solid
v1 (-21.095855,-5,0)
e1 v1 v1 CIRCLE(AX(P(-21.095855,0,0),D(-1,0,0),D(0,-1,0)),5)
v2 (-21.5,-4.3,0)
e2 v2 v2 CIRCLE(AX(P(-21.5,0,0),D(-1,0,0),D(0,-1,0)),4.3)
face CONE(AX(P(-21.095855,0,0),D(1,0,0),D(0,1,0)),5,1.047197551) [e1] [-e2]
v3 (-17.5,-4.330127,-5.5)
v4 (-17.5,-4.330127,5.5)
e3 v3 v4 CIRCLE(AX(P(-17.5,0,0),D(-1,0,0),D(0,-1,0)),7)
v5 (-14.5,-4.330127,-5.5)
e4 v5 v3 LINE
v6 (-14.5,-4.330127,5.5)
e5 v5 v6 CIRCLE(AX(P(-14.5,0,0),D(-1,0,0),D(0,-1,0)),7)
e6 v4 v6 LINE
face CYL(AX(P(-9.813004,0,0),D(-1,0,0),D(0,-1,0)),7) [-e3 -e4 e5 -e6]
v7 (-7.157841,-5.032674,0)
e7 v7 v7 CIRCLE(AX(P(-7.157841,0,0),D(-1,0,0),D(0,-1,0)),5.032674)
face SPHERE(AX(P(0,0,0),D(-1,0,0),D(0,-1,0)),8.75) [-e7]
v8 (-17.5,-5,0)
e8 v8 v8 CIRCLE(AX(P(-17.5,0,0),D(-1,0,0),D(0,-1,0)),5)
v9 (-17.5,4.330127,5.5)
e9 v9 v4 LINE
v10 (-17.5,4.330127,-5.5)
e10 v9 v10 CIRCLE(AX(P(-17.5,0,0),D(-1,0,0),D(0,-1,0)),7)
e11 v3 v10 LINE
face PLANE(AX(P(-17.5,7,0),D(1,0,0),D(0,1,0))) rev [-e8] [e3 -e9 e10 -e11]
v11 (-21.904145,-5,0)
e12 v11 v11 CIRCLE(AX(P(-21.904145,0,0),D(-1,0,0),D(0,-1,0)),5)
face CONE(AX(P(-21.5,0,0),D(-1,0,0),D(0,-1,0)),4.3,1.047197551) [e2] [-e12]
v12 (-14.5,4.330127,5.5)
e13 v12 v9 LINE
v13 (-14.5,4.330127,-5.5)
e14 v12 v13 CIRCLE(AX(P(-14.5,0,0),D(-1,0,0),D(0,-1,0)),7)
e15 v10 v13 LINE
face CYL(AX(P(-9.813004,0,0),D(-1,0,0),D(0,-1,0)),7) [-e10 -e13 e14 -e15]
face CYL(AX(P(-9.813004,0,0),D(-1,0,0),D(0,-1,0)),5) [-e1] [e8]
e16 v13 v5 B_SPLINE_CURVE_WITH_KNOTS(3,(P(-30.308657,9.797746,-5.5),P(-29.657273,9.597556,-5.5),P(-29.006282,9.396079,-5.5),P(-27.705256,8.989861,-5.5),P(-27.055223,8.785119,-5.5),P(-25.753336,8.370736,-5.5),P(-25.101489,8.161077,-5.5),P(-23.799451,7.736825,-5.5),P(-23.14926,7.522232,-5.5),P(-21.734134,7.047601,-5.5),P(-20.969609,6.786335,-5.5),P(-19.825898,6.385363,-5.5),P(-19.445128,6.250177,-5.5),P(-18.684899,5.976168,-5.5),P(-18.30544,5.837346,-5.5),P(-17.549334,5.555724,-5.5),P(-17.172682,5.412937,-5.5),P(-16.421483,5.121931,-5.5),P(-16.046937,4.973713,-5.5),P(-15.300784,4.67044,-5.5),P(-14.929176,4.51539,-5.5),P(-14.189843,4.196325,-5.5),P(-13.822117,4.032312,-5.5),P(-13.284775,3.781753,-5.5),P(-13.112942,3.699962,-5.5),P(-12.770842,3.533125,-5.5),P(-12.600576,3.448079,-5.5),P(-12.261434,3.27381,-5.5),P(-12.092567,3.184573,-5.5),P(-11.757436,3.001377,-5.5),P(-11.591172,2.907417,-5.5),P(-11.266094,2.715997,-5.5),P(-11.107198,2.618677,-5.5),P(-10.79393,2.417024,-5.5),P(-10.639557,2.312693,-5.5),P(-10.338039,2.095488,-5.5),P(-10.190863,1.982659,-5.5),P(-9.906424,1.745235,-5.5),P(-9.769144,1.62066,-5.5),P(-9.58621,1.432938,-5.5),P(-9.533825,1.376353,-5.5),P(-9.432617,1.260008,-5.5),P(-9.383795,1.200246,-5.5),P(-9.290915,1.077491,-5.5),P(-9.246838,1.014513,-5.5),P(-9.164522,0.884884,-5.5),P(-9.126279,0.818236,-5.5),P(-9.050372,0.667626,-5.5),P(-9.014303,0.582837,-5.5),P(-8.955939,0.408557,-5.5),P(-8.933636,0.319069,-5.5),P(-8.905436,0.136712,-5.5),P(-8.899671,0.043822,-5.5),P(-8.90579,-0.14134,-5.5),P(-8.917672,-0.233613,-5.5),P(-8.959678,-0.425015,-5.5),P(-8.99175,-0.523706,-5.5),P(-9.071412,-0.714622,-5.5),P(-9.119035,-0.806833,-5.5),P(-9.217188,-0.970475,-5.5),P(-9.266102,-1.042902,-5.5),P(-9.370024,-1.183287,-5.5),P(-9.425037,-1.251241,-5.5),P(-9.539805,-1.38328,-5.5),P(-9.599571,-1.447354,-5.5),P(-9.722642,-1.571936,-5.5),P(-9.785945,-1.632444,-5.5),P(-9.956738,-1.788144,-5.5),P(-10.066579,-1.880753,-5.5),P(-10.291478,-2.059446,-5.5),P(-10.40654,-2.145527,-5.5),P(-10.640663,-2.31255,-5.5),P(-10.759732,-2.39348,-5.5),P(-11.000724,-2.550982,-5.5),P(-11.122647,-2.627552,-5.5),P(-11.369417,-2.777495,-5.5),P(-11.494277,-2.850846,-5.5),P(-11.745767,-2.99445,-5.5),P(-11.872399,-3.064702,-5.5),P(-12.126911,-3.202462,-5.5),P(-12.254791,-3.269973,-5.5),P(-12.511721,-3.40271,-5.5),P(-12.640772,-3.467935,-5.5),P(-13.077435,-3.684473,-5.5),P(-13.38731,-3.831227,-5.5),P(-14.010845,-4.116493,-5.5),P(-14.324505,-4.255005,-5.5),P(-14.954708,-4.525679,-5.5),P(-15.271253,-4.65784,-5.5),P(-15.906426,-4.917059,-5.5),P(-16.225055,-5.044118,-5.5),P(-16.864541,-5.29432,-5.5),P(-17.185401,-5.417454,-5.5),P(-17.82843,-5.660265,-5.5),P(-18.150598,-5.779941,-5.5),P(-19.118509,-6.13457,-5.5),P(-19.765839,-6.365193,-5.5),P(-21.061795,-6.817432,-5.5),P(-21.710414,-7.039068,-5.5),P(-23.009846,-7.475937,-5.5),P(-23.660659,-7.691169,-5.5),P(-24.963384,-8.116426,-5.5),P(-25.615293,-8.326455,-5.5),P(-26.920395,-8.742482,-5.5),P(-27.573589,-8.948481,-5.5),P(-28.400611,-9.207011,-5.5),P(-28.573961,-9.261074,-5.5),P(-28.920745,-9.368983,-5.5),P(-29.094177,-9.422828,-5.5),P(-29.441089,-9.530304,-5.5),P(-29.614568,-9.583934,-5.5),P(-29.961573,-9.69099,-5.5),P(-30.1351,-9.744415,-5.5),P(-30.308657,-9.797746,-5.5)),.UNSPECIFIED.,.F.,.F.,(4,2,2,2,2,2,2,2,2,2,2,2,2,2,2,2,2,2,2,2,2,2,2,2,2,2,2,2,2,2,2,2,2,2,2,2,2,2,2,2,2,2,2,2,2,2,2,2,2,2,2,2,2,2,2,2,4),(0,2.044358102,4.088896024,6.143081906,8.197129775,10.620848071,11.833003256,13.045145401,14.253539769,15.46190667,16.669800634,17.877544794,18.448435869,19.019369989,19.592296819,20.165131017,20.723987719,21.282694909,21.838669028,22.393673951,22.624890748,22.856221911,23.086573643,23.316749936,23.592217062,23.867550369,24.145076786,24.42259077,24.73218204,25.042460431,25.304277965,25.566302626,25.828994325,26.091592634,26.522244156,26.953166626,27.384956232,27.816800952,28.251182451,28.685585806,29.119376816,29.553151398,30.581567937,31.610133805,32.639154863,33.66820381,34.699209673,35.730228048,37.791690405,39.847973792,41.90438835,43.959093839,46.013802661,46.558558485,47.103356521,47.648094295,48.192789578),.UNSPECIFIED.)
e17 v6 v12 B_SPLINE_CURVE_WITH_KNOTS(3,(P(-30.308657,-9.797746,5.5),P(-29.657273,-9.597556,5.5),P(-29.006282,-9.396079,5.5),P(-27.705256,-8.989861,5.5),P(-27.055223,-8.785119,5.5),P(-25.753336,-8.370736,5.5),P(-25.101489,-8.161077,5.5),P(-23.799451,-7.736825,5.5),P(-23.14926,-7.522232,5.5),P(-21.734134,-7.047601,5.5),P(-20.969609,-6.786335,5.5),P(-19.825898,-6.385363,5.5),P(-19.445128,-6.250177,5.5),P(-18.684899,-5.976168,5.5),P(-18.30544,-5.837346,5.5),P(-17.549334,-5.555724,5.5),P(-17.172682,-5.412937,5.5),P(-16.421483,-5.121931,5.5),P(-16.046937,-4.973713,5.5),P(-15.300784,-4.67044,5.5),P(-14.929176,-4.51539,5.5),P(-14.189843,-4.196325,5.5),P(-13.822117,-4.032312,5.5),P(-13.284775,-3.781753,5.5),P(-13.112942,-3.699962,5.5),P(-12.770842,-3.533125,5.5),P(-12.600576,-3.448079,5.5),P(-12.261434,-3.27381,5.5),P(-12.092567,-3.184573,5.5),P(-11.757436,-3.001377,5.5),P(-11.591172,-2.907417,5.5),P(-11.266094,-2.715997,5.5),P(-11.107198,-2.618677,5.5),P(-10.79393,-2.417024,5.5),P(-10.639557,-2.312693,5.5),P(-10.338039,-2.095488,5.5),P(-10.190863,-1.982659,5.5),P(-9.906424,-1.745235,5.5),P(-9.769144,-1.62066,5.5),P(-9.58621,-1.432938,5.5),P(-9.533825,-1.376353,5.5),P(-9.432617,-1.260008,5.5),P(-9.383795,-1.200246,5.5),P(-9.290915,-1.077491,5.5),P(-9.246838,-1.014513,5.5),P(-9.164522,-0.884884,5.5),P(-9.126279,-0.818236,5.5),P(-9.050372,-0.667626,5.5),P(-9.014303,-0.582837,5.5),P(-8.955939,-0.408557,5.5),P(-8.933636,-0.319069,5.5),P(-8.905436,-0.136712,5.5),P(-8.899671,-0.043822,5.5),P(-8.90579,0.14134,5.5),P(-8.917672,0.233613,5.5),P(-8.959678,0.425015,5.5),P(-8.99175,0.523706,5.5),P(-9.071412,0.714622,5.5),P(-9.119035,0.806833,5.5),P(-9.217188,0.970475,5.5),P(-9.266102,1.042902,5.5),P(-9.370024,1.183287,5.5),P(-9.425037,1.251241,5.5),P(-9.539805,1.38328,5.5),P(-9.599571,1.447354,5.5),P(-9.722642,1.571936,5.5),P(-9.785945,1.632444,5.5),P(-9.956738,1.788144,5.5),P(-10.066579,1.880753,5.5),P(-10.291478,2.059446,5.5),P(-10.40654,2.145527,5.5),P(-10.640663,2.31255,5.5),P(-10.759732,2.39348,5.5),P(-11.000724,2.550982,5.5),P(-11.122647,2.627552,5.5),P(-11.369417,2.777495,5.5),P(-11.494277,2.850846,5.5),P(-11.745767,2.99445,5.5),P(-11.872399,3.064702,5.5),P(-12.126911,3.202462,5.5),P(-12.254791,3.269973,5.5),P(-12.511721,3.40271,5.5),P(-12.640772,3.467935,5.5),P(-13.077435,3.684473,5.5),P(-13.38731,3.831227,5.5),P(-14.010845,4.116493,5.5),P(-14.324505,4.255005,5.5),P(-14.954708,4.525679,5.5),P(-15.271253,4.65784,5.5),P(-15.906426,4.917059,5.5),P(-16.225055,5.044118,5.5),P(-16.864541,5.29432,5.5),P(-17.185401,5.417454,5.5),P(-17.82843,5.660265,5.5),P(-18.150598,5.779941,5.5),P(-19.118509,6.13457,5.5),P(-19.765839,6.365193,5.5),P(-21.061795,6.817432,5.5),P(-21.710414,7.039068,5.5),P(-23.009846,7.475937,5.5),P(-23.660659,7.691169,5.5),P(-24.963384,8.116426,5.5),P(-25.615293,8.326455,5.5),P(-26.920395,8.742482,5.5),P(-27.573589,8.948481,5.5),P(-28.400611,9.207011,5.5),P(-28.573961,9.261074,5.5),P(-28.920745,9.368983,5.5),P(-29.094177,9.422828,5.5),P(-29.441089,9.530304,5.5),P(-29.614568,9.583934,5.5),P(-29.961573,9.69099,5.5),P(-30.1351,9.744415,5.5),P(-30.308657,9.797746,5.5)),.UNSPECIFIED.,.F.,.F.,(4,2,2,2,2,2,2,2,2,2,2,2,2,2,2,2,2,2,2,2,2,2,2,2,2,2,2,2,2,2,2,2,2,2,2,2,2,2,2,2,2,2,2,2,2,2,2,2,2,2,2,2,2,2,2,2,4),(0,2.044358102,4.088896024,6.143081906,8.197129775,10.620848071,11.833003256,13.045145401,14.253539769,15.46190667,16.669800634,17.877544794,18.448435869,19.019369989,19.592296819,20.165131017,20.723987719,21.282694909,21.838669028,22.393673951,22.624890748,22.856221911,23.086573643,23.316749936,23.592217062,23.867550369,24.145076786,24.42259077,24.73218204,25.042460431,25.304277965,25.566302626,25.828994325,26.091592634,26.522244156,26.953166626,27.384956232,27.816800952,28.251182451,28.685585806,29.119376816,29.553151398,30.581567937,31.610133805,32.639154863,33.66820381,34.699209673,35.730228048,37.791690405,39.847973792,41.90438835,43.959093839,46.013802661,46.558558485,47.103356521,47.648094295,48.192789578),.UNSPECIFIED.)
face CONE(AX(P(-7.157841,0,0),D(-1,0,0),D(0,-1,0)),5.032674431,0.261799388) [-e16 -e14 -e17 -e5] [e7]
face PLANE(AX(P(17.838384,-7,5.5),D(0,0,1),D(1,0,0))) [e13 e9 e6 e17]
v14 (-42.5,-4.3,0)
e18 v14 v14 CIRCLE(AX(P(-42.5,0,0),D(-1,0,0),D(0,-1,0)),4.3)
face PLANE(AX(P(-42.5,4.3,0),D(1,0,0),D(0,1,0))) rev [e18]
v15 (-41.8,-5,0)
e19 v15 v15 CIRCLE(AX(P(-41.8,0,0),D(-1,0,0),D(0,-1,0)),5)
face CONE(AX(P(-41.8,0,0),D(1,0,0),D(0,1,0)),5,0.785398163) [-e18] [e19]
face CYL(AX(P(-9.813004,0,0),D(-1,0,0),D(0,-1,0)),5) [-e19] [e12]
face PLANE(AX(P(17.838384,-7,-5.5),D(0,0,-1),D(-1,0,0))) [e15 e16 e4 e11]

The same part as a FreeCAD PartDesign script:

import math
import FreeCAD as App
import Part
import Sketcher
from FreeCAD import Vector
Q = App.Units.Quantity


def add_polygon(sketch, points):
    """Adds a closed chain of lines whose ends are joined by coincident constraints."""
    first, n = sketch.GeometryCount, len(points)
    for a, b in zip(points, points[1:] + points[:1]):
        sketch.addGeometry(Part.LineSegment(App.Vector(*a, 0), App.Vector(*b, 0)), False)
    for i in range(n):
        sketch.addConstraint(Sketcher.Constraint("Coincident", first + i, 2, first + (i + 1) % n, 1))

doc = App.newDocument("Part")
body = doc.addObject("PartDesign::Body", "Body")

# Sketch on XY plane
sketch1 = body.newObject("Sketcher::SketchObject", "Sketch")
sketch1.AttachmentSupport = (doc.getObject("XY_Plane"), [""])
sketch1.MapMode = "FlatFace"
sketch1.addGeometry([
    Part.LineSegment(Vector(-14.5, 7, 0), Vector(-17.5, 7, 0)),  # 0
    Part.LineSegment(Vector(-17.5, 7, 0), Vector(-17.5, 5, 0)),  # 1
    Part.LineSegment(Vector(-17.5, 5, 0), Vector(-21.1, 5, 0)),  # 2
    Part.LineSegment(Vector(-21.1, 5, 0), Vector(-21.5, 4.3, 0)),  # 3
    Part.LineSegment(Vector(-21.5, 4.3, 0), Vector(-21.9, 5, 0)),  # 4
    Part.LineSegment(Vector(-21.9, 5, 0), Vector(-41.8, 5, 0)),  # 5
    Part.LineSegment(Vector(-41.8, 5, 0), Vector(-42.5, 4.3, 0)),  # 6
    Part.LineSegment(Vector(-42.5, 4.3, 0), Vector(-42.5, 0, 0)),  # 7
    Part.LineSegment(Vector(-42.5, 0, 0), Vector(8.8, 0, 0)),  # 8
    Part.ArcOfCircle(Part.Circle(Vector(0, 0, 0), Vector(0, 0, 1), 8.8), math.radians(0), math.radians(145)),  # 9
    Part.LineSegment(Vector(-7.2, 5, 0), Vector(-14.5, 7, 0)),  # 10
], False)
sketch1.addConstraint([
    Sketcher.Constraint("Coincident", 0, 2, 1, 1),
    Sketcher.Constraint("Coincident", 1, 2, 2, 1),
    Sketcher.Constraint("Coincident", 2, 2, 3, 1),
    Sketcher.Constraint("Coincident", 3, 2, 4, 1),
    Sketcher.Constraint("Coincident", 4, 2, 5, 1),
    Sketcher.Constraint("Coincident", 5, 2, 6, 1),
    Sketcher.Constraint("Coincident", 6, 2, 7, 1),
    Sketcher.Constraint("Coincident", 7, 2, 8, 1),
    Sketcher.Constraint("Coincident", 8, 2, 9, 1),
    Sketcher.Constraint("Coincident", 9, 2, 10, 1),
    Sketcher.Constraint("Coincident", 10, 2, 0, 1),
    Sketcher.Constraint("Horizontal", 0),
    Sketcher.Constraint("Vertical", 1),
    Sketcher.Constraint("Horizontal", 2),
    Sketcher.Constraint("Horizontal", 5),
    Sketcher.Constraint("Vertical", 7),
    Sketcher.Constraint("Horizontal", 8),
    Sketcher.Constraint("Coincident", 9, 3, -1, 1),
    Sketcher.Constraint("PointOnObject", 7, 2, -1),
    Sketcher.Constraint("Horizontal", 2, 2, 4, 2),
    Sketcher.Constraint("Horizontal", 3, 2, 6, 2),
    Sketcher.Constraint("Equal", 3, 4),
    Sketcher.Constraint("DistanceX", 0, 2, 0, 1, Q("3 mm")),
    Sketcher.Constraint("DistanceY", 1, 2, 1, 1, Q("2 mm")),
    Sketcher.Constraint("Angle", 3, Q("-120 deg")),
    Sketcher.Constraint("Angle", 6, Q("-135 deg")),
    Sketcher.Constraint("Angle", 10, Q("165 deg")),
    Sketcher.Constraint("Radius", 9, Q("8.75 mm")),
    Sketcher.Constraint("DistanceY", 7, 2, 7, 1, Q("4.3 mm")),
    Sketcher.Constraint("DistanceY", -1, 1, 0, 2, Q("7 mm")),
    Sketcher.Constraint("DistanceX", 3, 2, 1, 2, Q("4 mm")),
    Sketcher.Constraint("DistanceX", 6, 2, 3, 2, Q("21 mm")),
    Sketcher.Constraint("DistanceX", 8, 1, 8, 2, Q("51.25 mm")),
])
revolution = body.newObject("PartDesign::Revolution", "Revolution")
revolution.Profile = sketch1
revolution.ReferenceAxis = (sketch1, ["H_Axis"])
revolution.Angle = 360

# Sketch on YZ plane
sketch2 = body.newObject("Sketcher::SketchObject", "Sketch001")
sketch2.AttachmentSupport = (doc.getObject("YZ_Plane"), [""])
sketch2.MapMode = "FlatFace"
sketch2.AttachmentOffset = App.Placement(Vector(0, 0, -17.5), App.Rotation())
add_polygon(sketch2, [(15, -15), (-15, -15), (-15, 15), (15, 15)])  # lines 0-3
add_polygon(sketch2, [(-7, 6), (-7, -6), (7, -6), (7, 6)])  # lines 4-7
sketch2.addConstraint([
    Sketcher.Constraint("Horizontal", 0),
    Sketcher.Constraint("Vertical", 1),
    Sketcher.Constraint("Horizontal", 2),
    Sketcher.Constraint("Vertical", 3),
    Sketcher.Constraint("Vertical", 4),
    Sketcher.Constraint("Horizontal", 5),
    Sketcher.Constraint("Vertical", 6),
    Sketcher.Constraint("Horizontal", 7),
    Sketcher.Constraint("Symmetric", 0, 2, 2, 2, -1, 1),
    Sketcher.Constraint("Symmetric", 4, 2, 6, 2, -1, 1),
    Sketcher.Constraint("Equal", 2, 1),
    Sketcher.Constraint("DistanceX", 5, 1, 5, 2, Q("14 mm")),
    Sketcher.Constraint("DistanceY", 4, 2, 4, 1, Q("11 mm")),
    Sketcher.Constraint("DistanceX", 0, 2, 0, 1, Q("30.882 mm")),
])
pocket1 = body.newObject("PartDesign::Pocket", "Pocket")
pocket1.Profile = sketch2
pocket1.Length = 10.342159
pocket1.Reversed = True

doc.recompute()
